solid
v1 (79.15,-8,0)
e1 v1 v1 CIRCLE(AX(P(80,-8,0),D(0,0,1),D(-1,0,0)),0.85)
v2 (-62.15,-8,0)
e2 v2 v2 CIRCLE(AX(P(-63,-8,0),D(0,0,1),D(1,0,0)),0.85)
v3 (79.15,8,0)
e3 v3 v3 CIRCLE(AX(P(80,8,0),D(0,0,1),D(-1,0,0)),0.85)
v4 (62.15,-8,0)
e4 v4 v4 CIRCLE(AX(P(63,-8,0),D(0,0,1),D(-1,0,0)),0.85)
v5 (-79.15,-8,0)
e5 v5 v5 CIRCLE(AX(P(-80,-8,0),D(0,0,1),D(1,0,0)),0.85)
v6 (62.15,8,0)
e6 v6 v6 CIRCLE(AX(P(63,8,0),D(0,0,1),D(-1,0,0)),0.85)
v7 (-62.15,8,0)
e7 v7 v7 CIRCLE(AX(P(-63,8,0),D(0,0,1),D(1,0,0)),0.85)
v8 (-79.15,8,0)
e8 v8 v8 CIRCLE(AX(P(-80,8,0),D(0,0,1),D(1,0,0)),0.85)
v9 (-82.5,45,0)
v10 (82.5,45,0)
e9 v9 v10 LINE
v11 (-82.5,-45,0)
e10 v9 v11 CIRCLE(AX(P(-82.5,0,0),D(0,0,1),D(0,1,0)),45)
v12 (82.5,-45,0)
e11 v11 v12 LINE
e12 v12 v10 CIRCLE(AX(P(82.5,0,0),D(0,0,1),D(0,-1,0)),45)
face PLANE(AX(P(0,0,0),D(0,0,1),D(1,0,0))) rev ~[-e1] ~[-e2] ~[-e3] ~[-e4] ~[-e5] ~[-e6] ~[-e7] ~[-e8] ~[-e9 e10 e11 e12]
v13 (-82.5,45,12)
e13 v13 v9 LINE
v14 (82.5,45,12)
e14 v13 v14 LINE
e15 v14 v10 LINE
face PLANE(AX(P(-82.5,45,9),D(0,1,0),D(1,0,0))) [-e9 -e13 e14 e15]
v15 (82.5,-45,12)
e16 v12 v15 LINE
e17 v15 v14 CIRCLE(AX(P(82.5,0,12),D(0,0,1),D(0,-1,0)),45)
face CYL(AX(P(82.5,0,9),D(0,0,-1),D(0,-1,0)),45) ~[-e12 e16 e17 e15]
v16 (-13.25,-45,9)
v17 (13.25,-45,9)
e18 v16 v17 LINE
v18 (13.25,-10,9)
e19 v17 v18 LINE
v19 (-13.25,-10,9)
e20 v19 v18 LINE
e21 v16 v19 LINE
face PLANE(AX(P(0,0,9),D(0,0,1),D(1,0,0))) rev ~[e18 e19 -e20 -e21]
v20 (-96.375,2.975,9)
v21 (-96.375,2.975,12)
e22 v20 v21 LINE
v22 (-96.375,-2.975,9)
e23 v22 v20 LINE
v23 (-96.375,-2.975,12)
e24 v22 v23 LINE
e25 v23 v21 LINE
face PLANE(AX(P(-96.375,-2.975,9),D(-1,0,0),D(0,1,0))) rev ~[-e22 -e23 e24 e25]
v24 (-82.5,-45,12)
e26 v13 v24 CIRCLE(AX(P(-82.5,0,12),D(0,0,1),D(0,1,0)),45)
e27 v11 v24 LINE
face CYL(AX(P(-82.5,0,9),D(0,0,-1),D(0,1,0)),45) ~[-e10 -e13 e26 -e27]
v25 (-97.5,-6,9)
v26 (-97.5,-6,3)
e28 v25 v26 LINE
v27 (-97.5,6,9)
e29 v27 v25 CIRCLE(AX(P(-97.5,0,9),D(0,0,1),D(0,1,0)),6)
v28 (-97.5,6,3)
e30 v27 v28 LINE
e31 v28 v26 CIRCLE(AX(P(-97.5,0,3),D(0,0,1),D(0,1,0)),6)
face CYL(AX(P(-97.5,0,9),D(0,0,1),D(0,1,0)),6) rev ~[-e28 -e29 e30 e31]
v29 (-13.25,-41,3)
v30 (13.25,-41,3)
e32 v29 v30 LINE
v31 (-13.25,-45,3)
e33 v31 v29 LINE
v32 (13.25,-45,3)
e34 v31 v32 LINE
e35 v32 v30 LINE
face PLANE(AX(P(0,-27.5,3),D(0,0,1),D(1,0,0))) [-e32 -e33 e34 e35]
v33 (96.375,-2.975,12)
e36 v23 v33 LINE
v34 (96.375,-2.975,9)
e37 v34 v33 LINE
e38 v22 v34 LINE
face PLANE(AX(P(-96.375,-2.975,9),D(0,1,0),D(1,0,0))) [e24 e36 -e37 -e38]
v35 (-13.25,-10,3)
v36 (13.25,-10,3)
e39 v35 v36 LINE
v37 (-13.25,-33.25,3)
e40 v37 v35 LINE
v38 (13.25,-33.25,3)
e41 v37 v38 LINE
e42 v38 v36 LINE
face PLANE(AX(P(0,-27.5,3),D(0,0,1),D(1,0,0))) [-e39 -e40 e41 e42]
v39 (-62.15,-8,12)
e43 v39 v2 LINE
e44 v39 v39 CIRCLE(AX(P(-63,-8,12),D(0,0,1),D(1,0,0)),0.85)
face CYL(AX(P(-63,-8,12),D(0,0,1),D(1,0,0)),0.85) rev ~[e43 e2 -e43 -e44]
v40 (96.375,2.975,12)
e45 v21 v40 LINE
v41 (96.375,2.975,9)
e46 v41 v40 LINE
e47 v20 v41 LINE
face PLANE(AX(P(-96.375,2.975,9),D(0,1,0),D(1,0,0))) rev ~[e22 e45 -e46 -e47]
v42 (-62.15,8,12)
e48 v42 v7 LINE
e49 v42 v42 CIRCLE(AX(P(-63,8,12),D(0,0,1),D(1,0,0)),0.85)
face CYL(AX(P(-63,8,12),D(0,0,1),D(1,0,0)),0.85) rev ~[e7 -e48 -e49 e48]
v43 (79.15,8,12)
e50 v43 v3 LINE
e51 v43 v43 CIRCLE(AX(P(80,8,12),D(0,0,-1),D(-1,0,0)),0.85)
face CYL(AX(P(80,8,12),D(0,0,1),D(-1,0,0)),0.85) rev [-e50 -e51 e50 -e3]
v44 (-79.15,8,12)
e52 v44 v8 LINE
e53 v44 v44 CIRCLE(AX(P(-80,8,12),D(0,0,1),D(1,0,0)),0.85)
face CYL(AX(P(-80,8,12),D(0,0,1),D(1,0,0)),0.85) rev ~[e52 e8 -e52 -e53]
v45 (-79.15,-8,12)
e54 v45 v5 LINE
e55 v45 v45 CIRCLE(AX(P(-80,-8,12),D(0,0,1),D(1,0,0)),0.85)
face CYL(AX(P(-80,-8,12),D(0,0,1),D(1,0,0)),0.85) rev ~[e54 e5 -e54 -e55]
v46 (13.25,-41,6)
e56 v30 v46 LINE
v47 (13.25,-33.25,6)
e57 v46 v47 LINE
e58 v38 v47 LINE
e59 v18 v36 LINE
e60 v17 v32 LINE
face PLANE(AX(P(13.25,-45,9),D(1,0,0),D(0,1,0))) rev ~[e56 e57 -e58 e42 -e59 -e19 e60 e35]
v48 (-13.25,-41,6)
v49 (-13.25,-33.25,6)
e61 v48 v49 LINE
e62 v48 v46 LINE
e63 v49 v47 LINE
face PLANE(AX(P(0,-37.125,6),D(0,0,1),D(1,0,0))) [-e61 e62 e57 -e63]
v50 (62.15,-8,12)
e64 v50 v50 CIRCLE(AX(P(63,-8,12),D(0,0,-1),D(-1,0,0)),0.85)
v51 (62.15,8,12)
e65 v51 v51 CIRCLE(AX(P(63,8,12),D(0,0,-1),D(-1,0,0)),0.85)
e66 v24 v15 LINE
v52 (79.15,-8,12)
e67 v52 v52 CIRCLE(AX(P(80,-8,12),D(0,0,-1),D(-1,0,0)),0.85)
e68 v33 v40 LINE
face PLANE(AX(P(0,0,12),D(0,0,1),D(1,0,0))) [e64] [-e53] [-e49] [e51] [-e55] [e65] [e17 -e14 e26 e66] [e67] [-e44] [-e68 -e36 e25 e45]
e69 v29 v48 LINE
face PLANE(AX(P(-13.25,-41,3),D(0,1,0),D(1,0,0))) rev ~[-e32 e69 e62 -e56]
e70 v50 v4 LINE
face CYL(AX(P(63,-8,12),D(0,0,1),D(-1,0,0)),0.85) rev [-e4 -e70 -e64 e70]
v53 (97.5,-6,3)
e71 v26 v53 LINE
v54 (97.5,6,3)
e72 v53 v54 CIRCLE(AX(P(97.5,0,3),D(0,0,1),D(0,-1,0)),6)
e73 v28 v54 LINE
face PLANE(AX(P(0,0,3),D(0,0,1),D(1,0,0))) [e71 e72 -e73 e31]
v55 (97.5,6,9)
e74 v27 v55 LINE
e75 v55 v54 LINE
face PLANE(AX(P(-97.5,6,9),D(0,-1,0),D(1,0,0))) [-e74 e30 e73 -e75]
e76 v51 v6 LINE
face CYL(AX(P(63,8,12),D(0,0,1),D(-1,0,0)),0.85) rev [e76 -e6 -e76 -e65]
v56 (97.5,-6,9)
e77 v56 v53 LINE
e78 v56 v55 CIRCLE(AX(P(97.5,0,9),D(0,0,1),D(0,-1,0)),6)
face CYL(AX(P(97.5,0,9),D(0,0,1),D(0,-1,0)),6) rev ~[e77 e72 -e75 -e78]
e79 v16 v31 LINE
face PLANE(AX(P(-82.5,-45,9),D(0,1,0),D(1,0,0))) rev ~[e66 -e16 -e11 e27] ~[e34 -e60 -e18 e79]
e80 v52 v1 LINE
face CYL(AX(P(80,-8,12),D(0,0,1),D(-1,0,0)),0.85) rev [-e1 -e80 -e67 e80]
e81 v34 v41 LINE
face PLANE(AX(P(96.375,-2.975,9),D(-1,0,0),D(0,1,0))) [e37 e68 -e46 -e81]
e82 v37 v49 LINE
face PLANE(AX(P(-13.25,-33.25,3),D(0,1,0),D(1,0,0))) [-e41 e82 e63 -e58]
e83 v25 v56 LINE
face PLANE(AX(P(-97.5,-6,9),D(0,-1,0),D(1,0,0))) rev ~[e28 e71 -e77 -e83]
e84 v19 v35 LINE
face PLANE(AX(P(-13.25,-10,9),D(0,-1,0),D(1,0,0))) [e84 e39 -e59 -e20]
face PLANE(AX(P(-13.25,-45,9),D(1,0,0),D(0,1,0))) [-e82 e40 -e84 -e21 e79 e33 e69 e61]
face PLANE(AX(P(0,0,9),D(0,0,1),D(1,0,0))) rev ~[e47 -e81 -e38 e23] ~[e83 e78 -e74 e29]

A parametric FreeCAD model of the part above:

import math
import FreeCAD as App
import Part
import Sketcher

V = App.Vector
Q = App.Units.Quantity


def add_polygon(sketch, points):
    """Adds a closed chain of lines whose ends are joined by coincident constraints."""
    first, n = sketch.GeometryCount, len(points)
    for a, b in zip(points, points[1:] + points[:1]):
        sketch.addGeometry(Part.LineSegment(App.Vector(*a, 0), App.Vector(*b, 0)), False)
    for i in range(n):
        sketch.addConstraint(Sketcher.Constraint("Coincident", first + i, 2, first + (i + 1) % n, 1))

doc = App.newDocument("Part")
body = doc.addObject("PartDesign::Body", "Body")

# Sketch on XY plane
sketch1 = doc.addObject("Sketcher::SketchObject", "Sketch")
body.addObject(sketch1)
sketch1.AttachmentSupport = (doc.XY_Plane, [""])
sketch1.MapMode = "FlatFace"
sketch1.addGeometry(Part.ArcOfCircle(Part.Circle(V(-82, 0, 0), V(0, 0, 1), 45), math.radians(90), math.radians(270)), False)
sketch1.addGeometry(Part.LineSegment(V(-82, -45, 0), V(82, -45, 0)), False)
sketch1.addGeometry(Part.ArcOfCircle(Part.Circle(V(82, 0, 0), V(0, 0, 1), 45), math.radians(-90), math.radians(90)), False)
sketch1.addGeometry(Part.LineSegment(V(82, 45, 0), V(-82, 45, 0)), False)
sketch1.addConstraint(Sketcher.Constraint("Tangent", 0, 2, 1, 1))
sketch1.addConstraint(Sketcher.Constraint("Tangent", 1, 2, 2, 1))
sketch1.addConstraint(Sketcher.Constraint("Tangent", 2, 2, 3, 1))
sketch1.addConstraint(Sketcher.Constraint("Tangent", 3, 2, 0, 1))
sketch1.addConstraint(Sketcher.Constraint("Horizontal", 1))
sketch1.addConstraint(Sketcher.Constraint("Horizontal", 3))
sketch1.addConstraint(Sketcher.Constraint("Symmetric", 0, 3, 2, 3, -1, 1))
sketch1.addConstraint(Sketcher.Constraint("Radius", 0, Q("45 mm")))
sketch1.addConstraint(Sketcher.Constraint("DistanceX", 1, 1, 1, 2, Q("165 mm")))
pad1 = doc.addObject("PartDesign::Pad", "Pad")
body.addObject(pad1)
pad1.Profile = sketch1
pad1.Length = 9

# Sketch on XY plane
sketch2 = doc.addObject("Sketcher::SketchObject", "Sketch001")
body.addObject(sketch2)
sketch2.AttachmentSupport = (doc.XY_Plane, [""])
sketch2.MapMode = "FlatFace"
sketch2.AttachmentOffset = App.Placement(V(0, 0, 9), App.Rotation())
sketch2.addGeometry(Part.ArcOfCircle(Part.Circle(V(-98, 0, 0), V(0, 0, 1), 6), math.radians(90), math.radians(270)), False)
sketch2.addGeometry(Part.LineSegment(V(-98, -6, 0), V(98, -6, 0)), False)
sketch2.addGeometry(Part.ArcOfCircle(Part.Circle(V(98, 0, 0), V(0, 0, 1), 6), math.radians(-90), math.radians(90)), False)
sketch2.addGeometry(Part.LineSegment(V(98, 6, 0), V(-98, 6, 0)), False)
sketch2.addConstraint(Sketcher.Constraint("Tangent", 0, 2, 1, 1))
sketch2.addConstraint(Sketcher.Constraint("Tangent", 1, 2, 2, 1))
sketch2.addConstraint(Sketcher.Constraint("Tangent", 2, 2, 3, 1))
sketch2.addConstraint(Sketcher.Constraint("Tangent", 3, 2, 0, 1))
sketch2.addConstraint(Sketcher.Constraint("Horizontal", 1))
sketch2.addConstraint(Sketcher.Constraint("Horizontal", 3))
sketch2.addConstraint(Sketcher.Constraint("Symmetric", 0, 3, 2, 3, -1, 1))
sketch2.addConstraint(Sketcher.Constraint("Radius", 0, Q("6 mm")))
sketch2.addConstraint(Sketcher.Constraint("DistanceX", 1, 1, 1, 2, Q("195 mm")))
pocket1 = doc.addObject("PartDesign::Pocket", "Pocket")
body.addObject(pocket1)
pocket1.Profile = sketch2
pocket1.Length = 6

# Sketch on XY plane
sketch3 = doc.addObject("Sketcher::SketchObject", "Sketch002")
body.addObject(sketch3)
sketch3.AttachmentSupport = (doc.XY_Plane, [""])
sketch3.MapMode = "FlatFace"
sketch3.AttachmentOffset = App.Placement(V(0, 0, 9), App.Rotation())
add_polygon(sketch3, [(-13, -10), (-13, -45), (13, -45), (13, -10)])  # lines 0-3
sketch3.addConstraint(Sketcher.Constraint("Vertical", 0))
sketch3.addConstraint(Sketcher.Constraint("Horizontal", 1))
sketch3.addConstraint(Sketcher.Constraint("Vertical", 2))
sketch3.addConstraint(Sketcher.Constraint("Horizontal", 3))
sketch3.addConstraint(Sketcher.Constraint("DistanceY", 0, 2, 0, 1, Q("35 mm")))
sketch3.addConstraint(Sketcher.Constraint("DistanceX", 1, 1, 1, 2, Q("26.5 mm")))
sketch3.addConstraint(Sketcher.Constraint("DistanceY", 0, 2, -1, 1, Q("45 mm")))
sketch3.addConstraint(Sketcher.Constraint("DistanceX", 0, 2, -1, 1, Q("13.25 mm")))
pocket2 = doc.addObject("PartDesign::Pocket", "Pocket001")
body.addObject(pocket2)
pocket2.Profile = sketch3
pocket2.Length = 6

# Sketch on XY plane
sketch4 = doc.addObject("Sketcher::SketchObject", "Sketch003")
body.addObject(sketch4)
sketch4.AttachmentSupport = (doc.XY_Plane, [""])
sketch4.MapMode = "FlatFace"
sketch4.AttachmentOffset = App.Placement(V(0, 0, 9), App.Rotation())
sketch4.addGeometry(Part.ArcOfCircle(Part.Circle(V(-82, 0, 0), V(0, 0, 1), 45), math.radians(90), math.radians(270)), False)  # 0
sketch4.addGeometry(Part.LineSegment(V(-82, -45, 0), V(82, -45, 0)), False)  # 1
sketch4.addGeometry(Part.ArcOfCircle(Part.Circle(V(82, 0, 0), V(0, 0, 1), 45), math.radians(-90), math.radians(90)), False)  # 2
sketch4.addGeometry(Part.LineSegment(V(82, 45, 0), V(-82, 45, 0)), False)  # 3
add_polygon(sketch4, [(96, -3), (-96, -3), (-96, 3), (96, 3)])  # lines 4-7
sketch4.addConstraint(Sketcher.Constraint("Tangent", 0, 2, 1, 1))
sketch4.addConstraint(Sketcher.Constraint("Tangent", 1, 2, 2, 1))
sketch4.addConstraint(Sketcher.Constraint("Tangent", 2, 2, 3, 1))
sketch4.addConstraint(Sketcher.Constraint("Tangent", 3, 2, 0, 1))
sketch4.addConstraint(Sketcher.Constraint("Horizontal", 1))
sketch4.addConstraint(Sketcher.Constraint("Horizontal", 3))
sketch4.addConstraint(Sketcher.Constraint("Horizontal", 4))
sketch4.addConstraint(Sketcher.Constraint("Vertical", 5))
sketch4.addConstraint(Sketcher.Constraint("Horizontal", 6))
sketch4.addConstraint(Sketcher.Constraint("Vertical", 7))
sketch4.addConstraint(Sketcher.Constraint("Symmetric", 0, 3, 2, 3, -1, 1))
sketch4.addConstraint(Sketcher.Constraint("Symmetric", 4, 2, 6, 2, -1, 1))
sketch4.addConstraint(Sketcher.Constraint("Radius", 0, Q("45 mm")))
sketch4.addConstraint(Sketcher.Constraint("DistanceX", 1, 1, 1, 2, Q("165 mm")))
sketch4.addConstraint(Sketcher.Constraint("DistanceX", 4, 2, 4, 1, Q("192.75 mm")))
sketch4.addConstraint(Sketcher.Constraint("DistanceY", 5, 1, 5, 2, Q("5.95 mm")))
pad2 = doc.addObject("PartDesign::Pad", "Pad001")
body.addObject(pad2)
pad2.Profile = sketch4
pad2.Length = 3

# Sketch on XY plane
sketch5 = doc.addObject("Sketcher::SketchObject", "Sketch004")
body.addObject(sketch5)
sketch5.AttachmentSupport = (doc.XY_Plane, [""])
sketch5.MapMode = "FlatFace"
sketch5.AttachmentOffset = App.Placement(V(0, 0, 12), App.Rotation())
sketch5.addGeometry(Part.Circle(V(-80, -8, 0), V(0, 0, 1), 0.8), False)
sketch5.addGeometry(Part.Circle(V(-63, -8, 0), V(0, 0, 1), 0.8), False)
sketch5.addGeometry(Part.Circle(V(-63, 8, 0), V(0, 0, 1), 0.8), False)
sketch5.addGeometry(Part.Circle(V(-80, 8, 0), V(0, 0, 1), 0.8), False)
sketch5.addConstraint(Sketcher.Constraint("Equal", 0, 1))
sketch5.addConstraint(Sketcher.Constraint("Equal", 1, 2))
sketch5.addConstraint(Sketcher.Constraint("Equal", 2, 3))
sketch5.addConstraint(Sketcher.Constraint("Symmetric", 1, 3, 2, 3, -1))
sketch5.addConstraint(Sketcher.Constraint("Symmetric", 0, 3, 3, 3, -1))
sketch5.addConstraint(Sketcher.Constraint("Horizontal", 0, 3, 1, 3))
sketch5.addConstraint(Sketcher.Constraint("Diameter", 0, Q("1.7 mm")))
sketch5.addConstraint(Sketcher.Constraint("DistanceX", 0, 3, -1, 1, Q("80 mm")))
sketch5.addConstraint(Sketcher.Constraint("DistanceY", 0, 3, -1, 1, Q("8 mm")))
sketch5.addConstraint(Sketcher.Constraint("DistanceX", 1, 3, -1, 1, Q("63 mm")))
pocket3 = doc.addObject("PartDesign::Pocket", "Pocket002")
body.addObject(pocket3)
pocket3.Profile = sketch5
pocket3.Type = "ThroughAll"

# Sketch on XY plane
sketch6 = doc.addObject("Sketcher::SketchObject", "Sketch005")
body.addObject(sketch6)
sketch6.AttachmentSupport = (doc.XY_Plane, [""])
sketch6.MapMode = "FlatFace"
sketch6.AttachmentOffset = App.Placement(V(0, 0, 3), App.Rotation())
add_polygon(sketch6, [(-13, -33), (-13, -41), (13, -41), (13, -33)])  # lines 0-3
sketch6.addConstraint(Sketcher.Constraint("Vertical", 0))
sketch6.addConstraint(Sketcher.Constraint("Horizontal", 1))
sketch6.addConstraint(Sketcher.Constraint("Vertical", 2))
sketch6.addConstraint(Sketcher.Constraint("Horizontal", 3))
sketch6.addConstraint(Sketcher.Constraint("DistanceX", 1, 1, 1, 2, Q("26.5 mm")))
sketch6.addConstraint(Sketcher.Constraint("DistanceY", 0, 2, -1, 1, Q("41 mm")))
sketch6.addConstraint(Sketcher.Constraint("DistanceY", 0, 2, 0, 1, Q("7.75 mm")))
sketch6.addConstraint(Sketcher.Constraint("DistanceX", 0, 2, -1, 1, Q("13.25 mm")))
pad3 = doc.addObject("PartDesign::Pad", "Pad002")
body.addObject(pad3)
pad3.Profile = sketch6
pad3.Length = 3
doc.recompute()

mirrored = doc.addObject("PartDesign::Mirrored", "Mirrored")
body.addObject(mirrored)
mirrored.Originals = [pocket3]
mirrored.MirrorPlane = (doc.YZ_Plane, [""])
body.Tip = mirrored

doc.recompute()
